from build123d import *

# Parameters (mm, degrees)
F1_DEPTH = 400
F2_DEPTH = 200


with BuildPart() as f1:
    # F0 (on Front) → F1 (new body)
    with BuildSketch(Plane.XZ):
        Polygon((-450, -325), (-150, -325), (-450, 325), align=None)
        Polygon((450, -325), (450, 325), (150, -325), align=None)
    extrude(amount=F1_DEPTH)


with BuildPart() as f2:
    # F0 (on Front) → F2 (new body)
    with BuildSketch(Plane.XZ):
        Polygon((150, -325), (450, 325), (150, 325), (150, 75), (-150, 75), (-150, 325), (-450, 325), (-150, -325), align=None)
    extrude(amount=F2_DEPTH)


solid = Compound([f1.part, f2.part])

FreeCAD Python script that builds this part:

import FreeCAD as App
import Part
import Sketcher
Q = App.Units.Quantity


def add_polygon(sketch, points):
    """Adds a closed chain of lines whose ends are joined by coincident constraints."""
    first, n = sketch.GeometryCount, len(points)
    for a, b in zip(points, points[1:] + points[:1]):
        sketch.addGeometry(Part.LineSegment(App.Vector(*a, 0), App.Vector(*b, 0)), False)
    for i in range(n):
        sketch.addConstraint(Sketcher.Constraint("Coincident", first + i, 2, first + (i + 1) % n, 1))

doc = App.newDocument("Part")
body = doc.addObject("PartDesign::Body", "Body")
body.AllowCompound = True

# Sketch on XZ plane
sketch1 = body.newObject("Sketcher::SketchObject", "Sketch")
sketch1.AttachmentSupport = (doc.getObject("XZ_Plane"), [""])
sketch1.MapMode = "FlatFace"
add_polygon(sketch1, [(-450, -325), (-150, -325), (-450, 325)])  # lines 0-2
add_polygon(sketch1, [(450, -325), (450, 325), (150, -325)])  # lines 3-5
sketch1.addConstraint(Sketcher.Constraint("Horizontal", 0))
sketch1.addConstraint(Sketcher.Constraint("Vertical", 2))
sketch1.addConstraint(Sketcher.Constraint("Vertical", 3))
sketch1.addConstraint(Sketcher.Constraint("Horizontal", 5))
sketch1.addConstraint(Sketcher.Constraint("Symmetric", 2, 2, 3, 2, -1, 1))
sketch1.addConstraint(Sketcher.Constraint("Symmetric", 0, 2, 4, 2, -2))
sketch1.addConstraint(Sketcher.Constraint("Horizontal", 1, 2, 3, 2))
sketch1.addConstraint(Sketcher.Constraint("DistanceX", 0, 1, 0, 2, Q("300 mm")))
sketch1.addConstraint(Sketcher.Constraint("DistanceY", 2, 2, 2, 1, Q("650 mm")))
sketch1.addConstraint(Sketcher.Constraint("DistanceX", 0, 2, -1, 1, Q("150 mm")))
pad1 = body.newObject("PartDesign::Pad", "Pad")
pad1.Profile = sketch1
pad1.Length = 400
body2 = doc.addObject("PartDesign::Body", "Body001")

# Sketch on XZ plane
sketch2 = body2.newObject("Sketcher::SketchObject", "Sketch001")
sketch2.AttachmentSupport = (doc.getObject("XZ_Plane001"), [""])
sketch2.MapMode = "FlatFace"
add_polygon(sketch2, [(150, -325), (450, 325), (150, 325), (150, 75), (-150, 75), (-150, 325), (-450, 325), (-150, -325)])  # lines 0-7
sketch2.addConstraint(Sketcher.Constraint("Horizontal", 1))
sketch2.addConstraint(Sketcher.Constraint("Vertical", 2))
sketch2.addConstraint(Sketcher.Constraint("Horizontal", 3))
sketch2.addConstraint(Sketcher.Constraint("Vertical", 4))
sketch2.addConstraint(Sketcher.Constraint("Horizontal", 5))
sketch2.addConstraint(Sketcher.Constraint("Horizontal", 7))
sketch2.addConstraint(Sketcher.Constraint("Symmetric", 1, 2, 6, 2, -1, 1))
sketch2.addConstraint(Sketcher.Constraint("Symmetric", 4, 2, 7, 2, -1, 1))
sketch2.addConstraint(Sketcher.Constraint("Vertical", 4, 2, 6, 2))
sketch2.addConstraint(Sketcher.Constraint("Equal", 1, 3))
sketch2.addConstraint(Sketcher.Constraint("Equal", 3, 5))
sketch2.addConstraint(Sketcher.Constraint("DistanceX", 1, 2, 1, 1, Q("300 mm")))
sketch2.addConstraint(Sketcher.Constraint("DistanceY", 2, 2, 2, 1, Q("250 mm")))
sketch2.addConstraint(Sketcher.Constraint("DistanceY", -1, 1, 0, 2, Q("325 mm")))
pad2 = body2.newObject("PartDesign::Pad", "Pad001")
pad2.Profile = sketch2
pad2.Length = 200

doc.recompute()
